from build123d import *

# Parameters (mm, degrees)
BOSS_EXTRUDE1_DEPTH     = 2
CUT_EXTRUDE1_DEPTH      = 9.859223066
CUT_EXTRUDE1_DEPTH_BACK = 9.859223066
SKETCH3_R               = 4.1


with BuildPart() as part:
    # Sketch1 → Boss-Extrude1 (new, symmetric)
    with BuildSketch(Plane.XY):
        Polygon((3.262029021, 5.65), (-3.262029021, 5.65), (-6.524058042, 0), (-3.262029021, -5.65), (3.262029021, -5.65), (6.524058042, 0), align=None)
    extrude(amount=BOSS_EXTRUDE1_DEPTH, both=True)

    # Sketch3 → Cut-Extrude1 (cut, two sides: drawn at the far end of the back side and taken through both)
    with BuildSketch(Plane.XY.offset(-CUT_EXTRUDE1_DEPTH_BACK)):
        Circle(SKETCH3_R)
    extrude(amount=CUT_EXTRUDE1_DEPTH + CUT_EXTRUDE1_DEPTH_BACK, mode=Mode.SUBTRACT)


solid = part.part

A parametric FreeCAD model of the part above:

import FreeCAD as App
import Part
import Sketcher
from FreeCAD import Vector
Q = App.Units.Quantity


def add_polygon(sketch, points):
    """Adds a closed chain of lines whose ends are joined by coincident constraints."""
    first, n = sketch.GeometryCount, len(points)
    for a, b in zip(points, points[1:] + points[:1]):
        sketch.addGeometry(Part.LineSegment(App.Vector(*a, 0), App.Vector(*b, 0)), False)
    for i in range(n):
        sketch.addConstraint(Sketcher.Constraint("Coincident", first + i, 2, first + (i + 1) % n, 1))

doc = App.newDocument("Part")
body = doc.addObject("PartDesign::Body", "Body")

# Sketch on XY plane
sketch1 = doc.addObject("Sketcher::SketchObject", "Sketch")
body.addObject(sketch1)
sketch1.AttachmentSupport = (doc.XY_Plane, [""])
sketch1.MapMode = "FlatFace"
add_polygon(sketch1, [(3, 6), (-3, 6), (-7, 0), (-3, -6), (3, -6), (7, 0)])  # lines 0-5
sketch1.addConstraint(Sketcher.Constraint("Horizontal", 0))
sketch1.addConstraint(Sketcher.Constraint("Horizontal", 3))
sketch1.addConstraint(Sketcher.Constraint("Symmetric", 0, 2, 3, 2, -1, 1))
sketch1.addConstraint(Sketcher.Constraint("Symmetric", 1, 2, 4, 2, -1, 1))
sketch1.addConstraint(Sketcher.Constraint("PointOnObject", 1, 2, -1))
sketch1.addConstraint(Sketcher.Constraint("Parallel", 2, 5))
sketch1.addConstraint(Sketcher.Constraint("Vertical", 0, 2, 2, 2))
sketch1.addConstraint(Sketcher.Constraint("Angle", 1, Q("-120 deg")))
sketch1.addConstraint(Sketcher.Constraint("DistanceY", 2, 2, 0, 2, 11.3))
sketch1.addConstraint(Sketcher.Constraint("DistanceX", 0, 2, 0, 1, 6.524058))
pad1 = doc.addObject("PartDesign::Pad", "Pad")
body.addObject(pad1)
pad1.Profile = sketch1
pad1.Length = 4
pad1.Midplane = True

# Sketch on XY plane
sketch2 = doc.addObject("Sketcher::SketchObject", "Sketch001")
body.addObject(sketch2)
sketch2.AttachmentSupport = (doc.XY_Plane, [""])
sketch2.MapMode = "FlatFace"
sketch2.addGeometry(Part.Circle(Vector(0, 0, 0), Vector(0, 0, 1), 4.1), False)
sketch2.addConstraint(Sketcher.Constraint("Coincident", 0, 3, -1, 1))
sketch2.addConstraint(Sketcher.Constraint("Diameter", 0, 8.2))
pocket1 = doc.addObject("PartDesign::Pocket", "Pocket")
body.addObject(pocket1)
pocket1.Profile = sketch2
pocket1.Type = "ThroughAll"
pocket1.Midplane = True

doc.recompute()
